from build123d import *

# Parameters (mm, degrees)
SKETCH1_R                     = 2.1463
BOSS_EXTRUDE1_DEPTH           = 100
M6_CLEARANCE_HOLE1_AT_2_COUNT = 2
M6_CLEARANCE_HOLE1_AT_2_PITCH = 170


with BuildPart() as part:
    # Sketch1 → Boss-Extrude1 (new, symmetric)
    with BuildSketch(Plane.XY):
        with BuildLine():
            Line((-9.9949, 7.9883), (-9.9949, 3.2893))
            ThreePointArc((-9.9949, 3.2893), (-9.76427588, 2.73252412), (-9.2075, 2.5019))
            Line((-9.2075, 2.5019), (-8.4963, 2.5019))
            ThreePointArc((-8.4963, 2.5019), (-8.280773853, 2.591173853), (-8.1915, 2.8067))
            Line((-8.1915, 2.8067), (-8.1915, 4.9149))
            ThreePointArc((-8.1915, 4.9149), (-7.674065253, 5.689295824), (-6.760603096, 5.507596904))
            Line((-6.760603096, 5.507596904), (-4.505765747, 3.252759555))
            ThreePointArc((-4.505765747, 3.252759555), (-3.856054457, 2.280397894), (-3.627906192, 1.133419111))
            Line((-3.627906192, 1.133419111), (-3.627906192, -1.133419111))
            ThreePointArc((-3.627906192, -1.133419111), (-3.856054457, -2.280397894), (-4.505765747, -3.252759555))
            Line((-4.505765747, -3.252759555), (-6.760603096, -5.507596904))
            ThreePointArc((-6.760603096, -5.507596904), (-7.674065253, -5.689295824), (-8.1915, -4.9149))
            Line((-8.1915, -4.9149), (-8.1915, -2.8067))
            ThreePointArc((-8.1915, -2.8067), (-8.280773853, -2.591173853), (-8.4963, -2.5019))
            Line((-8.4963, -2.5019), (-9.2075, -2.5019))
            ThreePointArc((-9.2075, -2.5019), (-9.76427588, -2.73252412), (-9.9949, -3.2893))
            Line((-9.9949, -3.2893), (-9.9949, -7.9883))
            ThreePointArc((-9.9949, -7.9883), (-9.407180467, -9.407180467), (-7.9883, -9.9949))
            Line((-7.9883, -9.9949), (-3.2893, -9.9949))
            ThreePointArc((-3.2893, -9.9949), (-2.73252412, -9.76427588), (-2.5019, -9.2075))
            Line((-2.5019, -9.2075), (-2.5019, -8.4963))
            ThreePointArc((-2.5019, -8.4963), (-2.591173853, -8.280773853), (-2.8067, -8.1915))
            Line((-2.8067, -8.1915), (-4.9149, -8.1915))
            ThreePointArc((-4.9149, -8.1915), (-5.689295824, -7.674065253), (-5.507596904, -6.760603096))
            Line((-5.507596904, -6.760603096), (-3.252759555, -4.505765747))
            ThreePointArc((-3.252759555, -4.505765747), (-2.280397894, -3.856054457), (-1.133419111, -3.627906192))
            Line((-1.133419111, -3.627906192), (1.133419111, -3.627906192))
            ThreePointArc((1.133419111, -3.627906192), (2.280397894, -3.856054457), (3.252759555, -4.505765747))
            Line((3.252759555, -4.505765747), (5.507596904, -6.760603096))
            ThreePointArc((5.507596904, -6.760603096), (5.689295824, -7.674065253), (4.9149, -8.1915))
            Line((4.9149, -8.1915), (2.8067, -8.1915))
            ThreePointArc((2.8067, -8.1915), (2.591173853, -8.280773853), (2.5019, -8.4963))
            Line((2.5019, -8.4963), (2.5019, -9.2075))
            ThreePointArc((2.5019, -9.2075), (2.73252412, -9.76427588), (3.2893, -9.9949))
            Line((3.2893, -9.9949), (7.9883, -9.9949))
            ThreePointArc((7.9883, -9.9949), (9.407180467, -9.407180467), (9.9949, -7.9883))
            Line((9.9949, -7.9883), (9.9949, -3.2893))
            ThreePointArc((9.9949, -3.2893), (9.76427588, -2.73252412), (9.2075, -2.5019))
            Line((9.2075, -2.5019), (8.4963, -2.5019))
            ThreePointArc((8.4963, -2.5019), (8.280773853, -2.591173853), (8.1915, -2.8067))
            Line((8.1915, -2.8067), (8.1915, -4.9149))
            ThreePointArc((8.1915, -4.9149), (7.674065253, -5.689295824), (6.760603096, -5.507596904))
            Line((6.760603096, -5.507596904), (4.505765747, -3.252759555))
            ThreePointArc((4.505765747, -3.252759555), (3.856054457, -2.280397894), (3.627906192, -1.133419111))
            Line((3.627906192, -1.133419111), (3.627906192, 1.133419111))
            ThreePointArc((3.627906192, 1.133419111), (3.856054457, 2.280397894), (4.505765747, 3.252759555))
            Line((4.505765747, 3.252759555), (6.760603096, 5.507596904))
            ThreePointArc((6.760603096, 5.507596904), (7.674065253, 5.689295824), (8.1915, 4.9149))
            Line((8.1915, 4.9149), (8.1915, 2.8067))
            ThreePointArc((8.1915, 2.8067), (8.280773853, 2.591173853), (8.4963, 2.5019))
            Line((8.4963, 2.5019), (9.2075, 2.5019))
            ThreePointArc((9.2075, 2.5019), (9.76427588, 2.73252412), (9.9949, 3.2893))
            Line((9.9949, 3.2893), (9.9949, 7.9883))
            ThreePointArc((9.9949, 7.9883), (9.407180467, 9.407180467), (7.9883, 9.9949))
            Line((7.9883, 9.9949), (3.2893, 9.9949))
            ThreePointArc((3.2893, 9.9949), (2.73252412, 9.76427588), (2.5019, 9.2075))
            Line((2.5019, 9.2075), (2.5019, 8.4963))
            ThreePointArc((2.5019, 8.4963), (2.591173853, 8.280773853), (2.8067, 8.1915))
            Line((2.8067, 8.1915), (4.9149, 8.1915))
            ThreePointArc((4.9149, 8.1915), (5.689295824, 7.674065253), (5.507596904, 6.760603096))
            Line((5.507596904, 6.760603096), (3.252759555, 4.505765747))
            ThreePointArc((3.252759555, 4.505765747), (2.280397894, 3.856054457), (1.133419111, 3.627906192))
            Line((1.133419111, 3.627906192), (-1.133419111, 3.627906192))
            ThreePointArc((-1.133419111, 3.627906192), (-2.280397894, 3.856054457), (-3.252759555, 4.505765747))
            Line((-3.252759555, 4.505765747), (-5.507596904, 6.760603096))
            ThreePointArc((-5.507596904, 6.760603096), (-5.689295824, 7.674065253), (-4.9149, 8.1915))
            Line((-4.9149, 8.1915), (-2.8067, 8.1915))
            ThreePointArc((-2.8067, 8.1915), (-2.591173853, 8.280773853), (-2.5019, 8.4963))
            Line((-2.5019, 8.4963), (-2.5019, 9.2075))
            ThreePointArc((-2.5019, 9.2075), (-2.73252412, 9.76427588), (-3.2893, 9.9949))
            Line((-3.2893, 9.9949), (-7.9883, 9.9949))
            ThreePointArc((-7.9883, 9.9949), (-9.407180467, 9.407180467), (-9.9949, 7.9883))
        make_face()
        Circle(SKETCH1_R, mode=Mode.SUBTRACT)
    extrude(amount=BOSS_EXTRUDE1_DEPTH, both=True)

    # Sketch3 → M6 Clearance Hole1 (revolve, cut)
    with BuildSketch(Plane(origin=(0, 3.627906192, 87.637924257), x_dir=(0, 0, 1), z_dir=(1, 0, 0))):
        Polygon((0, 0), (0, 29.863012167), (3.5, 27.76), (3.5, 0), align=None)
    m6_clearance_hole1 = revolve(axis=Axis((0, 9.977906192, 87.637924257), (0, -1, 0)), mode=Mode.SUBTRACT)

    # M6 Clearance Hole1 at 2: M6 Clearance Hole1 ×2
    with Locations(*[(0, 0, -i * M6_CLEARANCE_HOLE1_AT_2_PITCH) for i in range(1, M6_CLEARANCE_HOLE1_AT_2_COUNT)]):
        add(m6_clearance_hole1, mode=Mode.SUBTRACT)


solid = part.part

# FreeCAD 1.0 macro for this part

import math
import FreeCAD as App
import Part
import Sketcher
from FreeCAD import Vector
Q = App.Units.Quantity

doc = App.newDocument("Part")
body = doc.addObject("PartDesign::Body", "Body")

# Sketch on XY plane
sketch1 = body.newObject("Sketcher::SketchObject", "Sketch")
sketch1.AttachmentSupport = (doc.getObject("XY_Plane"), [""])
sketch1.MapMode = "FlatFace"
sketch1.addGeometry(Part.LineSegment(Vector(-9.99, 7.99, 0), Vector(-9.99, 3.29, 0)), False)
sketch1.addGeometry(Part.ArcOfCircle(Part.Circle(Vector(-9.21, 3.29, 0), Vector(0, 0, 1), 0.79), math.radians(180), math.radians(270)), False)
sketch1.addGeometry(Part.LineSegment(Vector(-9.21, 2.5, 0), Vector(-8.5, 2.5, 0)), False)
sketch1.addGeometry(Part.ArcOfCircle(Part.Circle(Vector(-8.5, 2.81, 0), Vector(0, 0, 1), 0.3), math.radians(-90), math.radians(0)), False)
sketch1.addGeometry(Part.LineSegment(Vector(-8.19, 2.81, 0), Vector(-8.19, 4.91, 0)), False)
sketch1.addGeometry(Part.ArcOfCircle(Part.Circle(Vector(-7.35, 4.91, 0), Vector(0, 0, 1), 0.84), math.radians(45), math.radians(180)), False)
sketch1.addGeometry(Part.LineSegment(Vector(-6.76, 5.51, 0), Vector(-4.51, 3.25, 0)), False)
sketch1.addGeometry(Part.ArcOfCircle(Part.Circle(Vector(-6.63, 1.13, 0), Vector(0, 0, 1), 3), math.radians(0), math.radians(45)), False)
sketch1.addGeometry(Part.LineSegment(Vector(-3.63, 1.13, 0), Vector(-3.63, -1.13, 0)), False)
sketch1.addGeometry(Part.ArcOfCircle(Part.Circle(Vector(-6.63, -1.13, 0), Vector(0, 0, 1), 3), math.radians(-45), math.radians(0)), False)
sketch1.addGeometry(Part.LineSegment(Vector(-4.51, -3.25, 0), Vector(-6.76, -5.51, 0)), False)
sketch1.addGeometry(Part.ArcOfCircle(Part.Circle(Vector(-7.35, -4.91, 0), Vector(0, 0, 1), 0.84), math.radians(180), math.radians(315)), False)
sketch1.addGeometry(Part.LineSegment(Vector(-8.19, -4.91, 0), Vector(-8.19, -2.81, 0)), False)
sketch1.addGeometry(Part.ArcOfCircle(Part.Circle(Vector(-8.5, -2.81, 0), Vector(0, 0, 1), 0.3), math.radians(0), math.radians(90)), False)
sketch1.addGeometry(Part.LineSegment(Vector(-8.5, -2.5, 0), Vector(-9.21, -2.5, 0)), False)
sketch1.addGeometry(Part.ArcOfCircle(Part.Circle(Vector(-9.21, -3.29, 0), Vector(0, 0, 1), 0.79), math.radians(90), math.radians(180)), False)
sketch1.addGeometry(Part.LineSegment(Vector(-9.99, -3.29, 0), Vector(-9.99, -7.99, 0)), False)
sketch1.addGeometry(Part.ArcOfCircle(Part.Circle(Vector(-7.99, -7.99, 0), Vector(0, 0, 1), 2.01), math.radians(180), math.radians(270)), False)
sketch1.addGeometry(Part.LineSegment(Vector(-7.99, -9.99, 0), Vector(-3.29, -9.99, 0)), False)
sketch1.addGeometry(Part.ArcOfCircle(Part.Circle(Vector(-3.29, -9.21, 0), Vector(0, 0, 1), 0.79), math.radians(-90), math.radians(0)), False)
sketch1.addGeometry(Part.LineSegment(Vector(-2.5, -9.21, 0), Vector(-2.5, -8.5, 0)), False)
sketch1.addGeometry(Part.ArcOfCircle(Part.Circle(Vector(-2.81, -8.5, 0), Vector(0, 0, 1), 0.3), math.radians(0), math.radians(90)), False)
sketch1.addGeometry(Part.LineSegment(Vector(-2.81, -8.19, 0), Vector(-4.91, -8.19, 0)), False)
sketch1.addGeometry(Part.ArcOfCircle(Part.Circle(Vector(-4.91, -7.35, 0), Vector(0, 0, 1), 0.84), math.radians(135), math.radians(270)), False)
sketch1.addGeometry(Part.LineSegment(Vector(-5.51, -6.76, 0), Vector(-3.25, -4.51, 0)), False)
sketch1.addGeometry(Part.ArcOfCircle(Part.Circle(Vector(-1.13, -6.63, 0), Vector(0, 0, 1), 3), math.radians(90), math.radians(135)), False)
sketch1.addGeometry(Part.LineSegment(Vector(-1.13, -3.63, 0), Vector(1.13, -3.63, 0)), False)
sketch1.addGeometry(Part.ArcOfCircle(Part.Circle(Vector(1.13, -6.63, 0), Vector(0, 0, 1), 3), math.radians(45), math.radians(90)), False)
sketch1.addGeometry(Part.LineSegment(Vector(3.25, -4.51, 0), Vector(5.51, -6.76, 0)), False)
sketch1.addGeometry(Part.ArcOfCircle(Part.Circle(Vector(4.91, -7.35, 0), Vector(0, 0, 1), 0.84), math.radians(-90), math.radians(45)), False)
sketch1.addGeometry(Part.LineSegment(Vector(4.91, -8.19, 0), Vector(2.81, -8.19, 0)), False)
sketch1.addGeometry(Part.ArcOfCircle(Part.Circle(Vector(2.81, -8.5, 0), Vector(0, 0, 1), 0.3), math.radians(90), math.radians(180)), False)
sketch1.addGeometry(Part.LineSegment(Vector(2.5, -8.5, 0), Vector(2.5, -9.21, 0)), False)
sketch1.addGeometry(Part.ArcOfCircle(Part.Circle(Vector(3.29, -9.21, 0), Vector(0, 0, 1), 0.79), math.radians(180), math.radians(270)), False)
sketch1.addGeometry(Part.LineSegment(Vector(3.29, -9.99, 0), Vector(7.99, -9.99, 0)), False)
sketch1.addGeometry(Part.ArcOfCircle(Part.Circle(Vector(7.99, -7.99, 0), Vector(0, 0, 1), 2.01), math.radians(-90), math.radians(0)), False)
sketch1.addGeometry(Part.LineSegment(Vector(9.99, -7.99, 0), Vector(9.99, -3.29, 0)), False)
sketch1.addGeometry(Part.ArcOfCircle(Part.Circle(Vector(9.21, -3.29, 0), Vector(0, 0, 1), 0.79), math.radians(0), math.radians(90)), False)
sketch1.addGeometry(Part.LineSegment(Vector(9.21, -2.5, 0), Vector(8.5, -2.5, 0)), False)
sketch1.addGeometry(Part.ArcOfCircle(Part.Circle(Vector(8.5, -2.81, 0), Vector(0, 0, 1), 0.3), math.radians(90), math.radians(180)), False)
sketch1.addGeometry(Part.LineSegment(Vector(8.19, -2.81, 0), Vector(8.19, -4.91, 0)), False)
sketch1.addGeometry(Part.ArcOfCircle(Part.Circle(Vector(7.35, -4.91, 0), Vector(0, 0, 1), 0.84), math.radians(-135), math.radians(0)), False)
sketch1.addGeometry(Part.LineSegment(Vector(6.76, -5.51, 0), Vector(4.51, -3.25, 0)), False)
sketch1.addGeometry(Part.ArcOfCircle(Part.Circle(Vector(6.63, -1.13, 0), Vector(0, 0, 1), 3), math.radians(180), math.radians(225)), False)
sketch1.addGeometry(Part.LineSegment(Vector(3.63, -1.13, 0), Vector(3.63, 1.13, 0)), False)
sketch1.addGeometry(Part.ArcOfCircle(Part.Circle(Vector(6.63, 1.13, 0), Vector(0, 0, 1), 3), math.radians(135), math.radians(180)), False)
sketch1.addGeometry(Part.LineSegment(Vector(4.51, 3.25, 0), Vector(6.76, 5.51, 0)), False)
sketch1.addGeometry(Part.ArcOfCircle(Part.Circle(Vector(7.35, 4.91, 0), Vector(0, 0, 1), 0.84), math.radians(0), math.radians(135)), False)
sketch1.addGeometry(Part.LineSegment(Vector(8.19, 4.91, 0), Vector(8.19, 2.81, 0)), False)
sketch1.addGeometry(Part.ArcOfCircle(Part.Circle(Vector(8.5, 2.81, 0), Vector(0, 0, 1), 0.3), math.radians(180), math.radians(270)), False)
sketch1.addGeometry(Part.LineSegment(Vector(8.5, 2.5, 0), Vector(9.21, 2.5, 0)), False)
sketch1.addGeometry(Part.ArcOfCircle(Part.Circle(Vector(9.21, 3.29, 0), Vector(0, 0, 1), 0.79), math.radians(-90), math.radians(0)), False)
sketch1.addGeometry(Part.LineSegment(Vector(9.99, 3.29, 0), Vector(9.99, 7.99, 0)), False)
sketch1.addGeometry(Part.ArcOfCircle(Part.Circle(Vector(7.99, 7.99, 0), Vector(0, 0, 1), 2.01), math.radians(0), math.radians(90)), False)
sketch1.addGeometry(Part.LineSegment(Vector(7.99, 9.99, 0), Vector(3.29, 9.99, 0)), False)
sketch1.addGeometry(Part.ArcOfCircle(Part.Circle(Vector(3.29, 9.21, 0), Vector(0, 0, 1), 0.79), math.radians(90), math.radians(180)), False)
sketch1.addGeometry(Part.LineSegment(Vector(2.5, 9.21, 0), Vector(2.5, 8.5, 0)), False)
sketch1.addGeometry(Part.ArcOfCircle(Part.Circle(Vector(2.81, 8.5, 0), Vector(0, 0, 1), 0.3), math.radians(180), math.radians(270)), False)
sketch1.addGeometry(Part.LineSegment(Vector(2.81, 8.19, 0), Vector(4.91, 8.19, 0)), False)
sketch1.addGeometry(Part.ArcOfCircle(Part.Circle(Vector(4.91, 7.35, 0), Vector(0, 0, 1), 0.84), math.radians(-45), math.radians(90)), False)
sketch1.addGeometry(Part.LineSegment(Vector(5.51, 6.76, 0), Vector(3.25, 4.51, 0)), False)
sketch1.addGeometry(Part.ArcOfCircle(Part.Circle(Vector(1.13, 6.63, 0), Vector(0, 0, 1), 3), math.radians(-90), math.radians(-45)), False)
sketch1.addGeometry(Part.LineSegment(Vector(1.13, 3.63, 0), Vector(-1.13, 3.63, 0)), False)
sketch1.addGeometry(Part.ArcOfCircle(Part.Circle(Vector(-1.13, 6.63, 0), Vector(0, 0, 1), 3), math.radians(-135), math.radians(-90)), False)
sketch1.addGeometry(Part.LineSegment(Vector(-3.25, 4.51, 0), Vector(-5.51, 6.76, 0)), False)
sketch1.addGeometry(Part.ArcOfCircle(Part.Circle(Vector(-4.91, 7.35, 0), Vector(0, 0, 1), 0.84), math.radians(90), math.radians(225)), False)
sketch1.addGeometry(Part.LineSegment(Vector(-4.91, 8.19, 0), Vector(-2.81, 8.19, 0)), False)
sketch1.addGeometry(Part.ArcOfCircle(Part.Circle(Vector(-2.81, 8.5, 0), Vector(0, 0, 1), 0.3), math.radians(-90), math.radians(0)), False)
sketch1.addGeometry(Part.LineSegment(Vector(-2.5, 8.5, 0), Vector(-2.5, 9.21, 0)), False)
sketch1.addGeometry(Part.ArcOfCircle(Part.Circle(Vector(-3.29, 9.21, 0), Vector(0, 0, 1), 0.79), math.radians(0), math.radians(90)), False)
sketch1.addGeometry(Part.LineSegment(Vector(-3.29, 9.99, 0), Vector(-7.99, 9.99, 0)), False)
sketch1.addGeometry(Part.ArcOfCircle(Part.Circle(Vector(-7.99, 7.99, 0), Vector(0, 0, 1), 2.01), math.radians(90), math.radians(180)), False)
sketch1.addGeometry(Part.Circle(Vector(0, 0, 0), Vector(0, 0, 1), 2.15), False)
sketch1.addConstraint(Sketcher.Constraint("Tangent", 0, 2, 1, 1))
sketch1.addConstraint(Sketcher.Constraint("Tangent", 1, 2, 2, 1))
sketch1.addConstraint(Sketcher.Constraint("Tangent", 2, 2, 3, 1))
sketch1.addConstraint(Sketcher.Constraint("Tangent", 3, 2, 4, 1))
sketch1.addConstraint(Sketcher.Constraint("Tangent", 4, 2, 5, 2))
sketch1.addConstraint(Sketcher.Constraint("Tangent", 5, 1, 6, 1))
sketch1.addConstraint(Sketcher.Constraint("Tangent", 6, 2, 7, 2))
sketch1.addConstraint(Sketcher.Constraint("Tangent", 7, 1, 8, 1))
sketch1.addConstraint(Sketcher.Constraint("Tangent", 8, 2, 9, 2))
sketch1.addConstraint(Sketcher.Constraint("Tangent", 9, 1, 10, 1))
sketch1.addConstraint(Sketcher.Constraint("Tangent", 10, 2, 11, 2))
sketch1.addConstraint(Sketcher.Constraint("Tangent", 11, 1, 12, 1))
sketch1.addConstraint(Sketcher.Constraint("Tangent", 12, 2, 13, 1))
sketch1.addConstraint(Sketcher.Constraint("Tangent", 13, 2, 14, 1))
sketch1.addConstraint(Sketcher.Constraint("Tangent", 14, 2, 15, 1))
sketch1.addConstraint(Sketcher.Constraint("Tangent", 15, 2, 16, 1))
sketch1.addConstraint(Sketcher.Constraint("Tangent", 16, 2, 17, 1))
sketch1.addConstraint(Sketcher.Constraint("Tangent", 17, 2, 18, 1))
sketch1.addConstraint(Sketcher.Constraint("Tangent", 18, 2, 19, 1))
sketch1.addConstraint(Sketcher.Constraint("Tangent", 19, 2, 20, 1))
sketch1.addConstraint(Sketcher.Constraint("Tangent", 20, 2, 21, 1))
sketch1.addConstraint(Sketcher.Constraint("Tangent", 21, 2, 22, 1))
sketch1.addConstraint(Sketcher.Constraint("Tangent", 22, 2, 23, 2))
sketch1.addConstraint(Sketcher.Constraint("Tangent", 23, 1, 24, 1))
sketch1.addConstraint(Sketcher.Constraint("Tangent", 24, 2, 25, 2))
sketch1.addConstraint(Sketcher.Constraint("Tangent", 25, 1, 26, 1))
sketch1.addConstraint(Sketcher.Constraint("Tangent", 26, 2, 27, 2))
sketch1.addConstraint(Sketcher.Constraint("Tangent", 27, 1, 28, 1))
sketch1.addConstraint(Sketcher.Constraint("Tangent", 28, 2, 29, 2))
sketch1.addConstraint(Sketcher.Constraint("Tangent", 29, 1, 30, 1))
sketch1.addConstraint(Sketcher.Constraint("Tangent", 30, 2, 31, 1))
sketch1.addConstraint(Sketcher.Constraint("Tangent", 31, 2, 32, 1))
sketch1.addConstraint(Sketcher.Constraint("Tangent", 32, 2, 33, 1))
sketch1.addConstraint(Sketcher.Constraint("Tangent", 33, 2, 34, 1))
sketch1.addConstraint(Sketcher.Constraint("Tangent", 34, 2, 35, 1))
sketch1.addConstraint(Sketcher.Constraint("Tangent", 35, 2, 36, 1))
sketch1.addConstraint(Sketcher.Constraint("Tangent", 36, 2, 37, 1))
sketch1.addConstraint(Sketcher.Constraint("Tangent", 37, 2, 38, 1))
sketch1.addConstraint(Sketcher.Constraint("Tangent", 38, 2, 39, 1))
sketch1.addConstraint(Sketcher.Constraint("Tangent", 39, 2, 40, 1))
sketch1.addConstraint(Sketcher.Constraint("Tangent", 40, 2, 41, 2))
sketch1.addConstraint(Sketcher.Constraint("Tangent", 41, 1, 42, 1))
sketch1.addConstraint(Sketcher.Constraint("Tangent", 42, 2, 43, 2))
sketch1.addConstraint(Sketcher.Constraint("Tangent", 43, 1, 44, 1))
sketch1.addConstraint(Sketcher.Constraint("Tangent", 44, 2, 45, 2))
sketch1.addConstraint(Sketcher.Constraint("Tangent", 45, 1, 46, 1))
sketch1.addConstraint(Sketcher.Constraint("Tangent", 46, 2, 47, 2))
sketch1.addConstraint(Sketcher.Constraint("Tangent", 47, 1, 48, 1))
sketch1.addConstraint(Sketcher.Constraint("Tangent", 48, 2, 49, 1))
sketch1.addConstraint(Sketcher.Constraint("Tangent", 49, 2, 50, 1))
sketch1.addConstraint(Sketcher.Constraint("Tangent", 50, 2, 51, 1))
sketch1.addConstraint(Sketcher.Constraint("Tangent", 51, 2, 52, 1))
sketch1.addConstraint(Sketcher.Constraint("Tangent", 52, 2, 53, 1))
sketch1.addConstraint(Sketcher.Constraint("Tangent", 53, 2, 54, 1))
sketch1.addConstraint(Sketcher.Constraint("Tangent", 54, 2, 55, 1))
sketch1.addConstraint(Sketcher.Constraint("Tangent", 55, 2, 56, 1))
sketch1.addConstraint(Sketcher.Constraint("Tangent", 56, 2, 57, 1))
sketch1.addConstraint(Sketcher.Constraint("Tangent", 57, 2, 58, 1))
sketch1.addConstraint(Sketcher.Constraint("Tangent", 58, 2, 59, 2))
sketch1.addConstraint(Sketcher.Constraint("Tangent", 59, 1, 60, 1))
sketch1.addConstraint(Sketcher.Constraint("Tangent", 60, 2, 61, 2))
sketch1.addConstraint(Sketcher.Constraint("Tangent", 61, 1, 62, 1))
sketch1.addConstraint(Sketcher.Constraint("Tangent", 62, 2, 63, 2))
sketch1.addConstraint(Sketcher.Constraint("Tangent", 63, 1, 64, 1))
sketch1.addConstraint(Sketcher.Constraint("Tangent", 64, 2, 65, 2))
sketch1.addConstraint(Sketcher.Constraint("Tangent", 65, 1, 66, 1))
sketch1.addConstraint(Sketcher.Constraint("Tangent", 66, 2, 67, 1))
sketch1.addConstraint(Sketcher.Constraint("Tangent", 67, 2, 68, 1))
sketch1.addConstraint(Sketcher.Constraint("Tangent", 68, 2, 69, 1))
sketch1.addConstraint(Sketcher.Constraint("Tangent", 69, 2, 70, 1))
sketch1.addConstraint(Sketcher.Constraint("Tangent", 70, 2, 71, 1))
sketch1.addConstraint(Sketcher.Constraint("Tangent", 71, 2, 0, 1))
sketch1.addConstraint(Sketcher.Constraint("Vertical", 0))
sketch1.addConstraint(Sketcher.Constraint("Horizontal", 2))
sketch1.addConstraint(Sketcher.Constraint("Vertical", 4))
sketch1.addConstraint(Sketcher.Constraint("Vertical", 8))
sketch1.addConstraint(Sketcher.Constraint("Vertical", 12))
sketch1.addConstraint(Sketcher.Constraint("Horizontal", 14))
sketch1.addConstraint(Sketcher.Constraint("Vertical", 16))
sketch1.addConstraint(Sketcher.Constraint("Horizontal", 18))
sketch1.addConstraint(Sketcher.Constraint("Vertical", 20))
sketch1.addConstraint(Sketcher.Constraint("Horizontal", 22))
sketch1.addConstraint(Sketcher.Constraint("Horizontal", 26))
sketch1.addConstraint(Sketcher.Constraint("Horizontal", 30))
sketch1.addConstraint(Sketcher.Constraint("Vertical", 32))
sketch1.addConstraint(Sketcher.Constraint("Horizontal", 34))
sketch1.addConstraint(Sketcher.Constraint("Vertical", 36))
sketch1.addConstraint(Sketcher.Constraint("Horizontal", 38))
sketch1.addConstraint(Sketcher.Constraint("Vertical", 40))
sketch1.addConstraint(Sketcher.Constraint("Vertical", 44))
sketch1.addConstraint(Sketcher.Constraint("Vertical", 48))
sketch1.addConstraint(Sketcher.Constraint("Horizontal", 50))
sketch1.addConstraint(Sketcher.Constraint("Vertical", 52))
sketch1.addConstraint(Sketcher.Constraint("Horizontal", 54))
sketch1.addConstraint(Sketcher.Constraint("Vertical", 56))
sketch1.addConstraint(Sketcher.Constraint("Horizontal", 58))
sketch1.addConstraint(Sketcher.Constraint("Horizontal", 62))
sketch1.addConstraint(Sketcher.Constraint("Horizontal", 66))
sketch1.addConstraint(Sketcher.Constraint("Vertical", 68))
sketch1.addConstraint(Sketcher.Constraint("Horizontal", 70))
sketch1.addConstraint(Sketcher.Constraint("Coincident", 72, 3, -1, 1))
sketch1.addConstraint(Sketcher.Constraint("Equal", 7, 9))
sketch1.addConstraint(Sketcher.Constraint("Equal", 5, 11))
sketch1.addConstraint(Sketcher.Constraint("Equal", 3, 13))
sketch1.addConstraint(Sketcher.Constraint("Equal", 1, 15))
sketch1.addConstraint(Sketcher.Constraint("Equal", 15, 19))
sketch1.addConstraint(Sketcher.Constraint("Equal", 13, 21))
sketch1.addConstraint(Sketcher.Constraint("Equal", 11, 23))
sketch1.addConstraint(Sketcher.Constraint("Equal", 9, 25))
sketch1.addConstraint(Sketcher.Constraint("Equal", 25, 27))
sketch1.addConstraint(Sketcher.Constraint("Equal", 23, 29))
sketch1.addConstraint(Sketcher.Constraint("Equal", 21, 31))
sketch1.addConstraint(Sketcher.Constraint("Equal", 19, 33))
sketch1.addConstraint(Sketcher.Constraint("Equal", 17, 35))
sketch1.addConstraint(Sketcher.Constraint("Equal", 33, 37))
sketch1.addConstraint(Sketcher.Constraint("Equal", 31, 39))
sketch1.addConstraint(Sketcher.Constraint("Equal", 29, 41))
sketch1.addConstraint(Sketcher.Constraint("Equal", 27, 43))
sketch1.addConstraint(Sketcher.Constraint("Equal", 43, 45))
sketch1.addConstraint(Sketcher.Constraint("Equal", 41, 47))
sketch1.addConstraint(Sketcher.Constraint("Equal", 39, 49))
sketch1.addConstraint(Sketcher.Constraint("Equal", 37, 51))
sketch1.addConstraint(Sketcher.Constraint("Equal", 35, 53))
sketch1.addConstraint(Sketcher.Constraint("Equal", 51, 55))
sketch1.addConstraint(Sketcher.Constraint("Equal", 49, 57))
sketch1.addConstraint(Sketcher.Constraint("Equal", 47, 59))
sketch1.addConstraint(Sketcher.Constraint("Equal", 45, 61))
sketch1.addConstraint(Sketcher.Constraint("Equal", 61, 63))
sketch1.addConstraint(Sketcher.Constraint("Equal", 59, 65))
sketch1.addConstraint(Sketcher.Constraint("Equal", 57, 67))
sketch1.addConstraint(Sketcher.Constraint("Equal", 55, 69))
sketch1.addConstraint(Sketcher.Constraint("Equal", 53, 71))
sketch1.addConstraint(Sketcher.Constraint("Symmetric", 1, 3, 37, 3, -1, 1))
sketch1.addConstraint(Sketcher.Constraint("Symmetric", 5, 3, 41, 3, -1, 1))
sketch1.addConstraint(Sketcher.Constraint("Symmetric", 7, 3, 43, 3, -1, 1))
sketch1.addConstraint(Sketcher.Constraint("Symmetric", 11, 3, 47, 3, -1, 1))
sketch1.addConstraint(Sketcher.Constraint("Symmetric", 15, 3, 51, 3, -1, 1))
sketch1.addConstraint(Sketcher.Constraint("Symmetric", 19, 3, 55, 3, -1, 1))
sketch1.addConstraint(Sketcher.Constraint("Symmetric", 23, 3, 59, 3, -1, 1))
sketch1.addConstraint(Sketcher.Constraint("Symmetric", 25, 3, 61, 3, -1, 1))
sketch1.addConstraint(Sketcher.Constraint("Symmetric", 29, 3, 65, 3, -1, 1))
sketch1.addConstraint(Sketcher.Constraint("Symmetric", 33, 3, 69, 3, -1, 1))
sketch1.addConstraint(Sketcher.Constraint("Symmetric", 23, 3, 29, 3, -2))
sketch1.addConstraint(Sketcher.Constraint("Symmetric", 19, 3, 33, 3, -2))
sketch1.addConstraint(Sketcher.Constraint("Symmetric", 15, 3, 37, 3, -2))
sketch1.addConstraint(Sketcher.Constraint("Symmetric", 11, 3, 41, 3, -2))
sketch1.addConstraint(Sketcher.Constraint("Perpendicular", 6, 10))
sketch1.addConstraint(Sketcher.Constraint("Parallel", 10, 24))
sketch1.addConstraint(Sketcher.Constraint("Perpendicular", 24, 28))
sketch1.addConstraint(Sketcher.Constraint("Perpendicular", 42, 46))
sketch1.addConstraint(Sketcher.Constraint("Perpendicular", 60, 64))
sketch1.addConstraint(Sketcher.Constraint("Horizontal", 9, 3, 43, 3))
sketch1.addConstraint(Sketcher.Constraint("Equal", 70, 0))
sketch1.addConstraint(Sketcher.Constraint("Equal", 66, 4))
sketch1.addConstraint(Sketcher.Constraint("Equal", 62, 8))
sketch1.addConstraint(Sketcher.Constraint("Equal", 50, 20))
sketch1.addConstraint(Sketcher.Constraint("Equal", 10, 24))
sketch1.addConstraint(Sketcher.Constraint("Diameter", 72, Q("0.169 in")))
sketch1.addConstraint(Sketcher.Constraint("Radius", 1, Q("0.031 in")))
sketch1.addConstraint(Sketcher.Constraint("Radius", 3, Q("0.012 in")))
sketch1.addConstraint(Sketcher.Constraint("Radius", 5, Q("0.033 in")))
sketch1.addConstraint(Sketcher.Constraint("Radius", 7, Q("0.118 in")))
sketch1.addConstraint(Sketcher.Constraint("Radius", 17, Q("0.079 in")))
sketch1.addConstraint(Sketcher.Constraint("DistanceX", 2, 1, 2, 2, Q("0.028 in")))
sketch1.addConstraint(Sketcher.Constraint("DistanceX", 18, 1, 18, 2, Q("0.185 in")))
sketch1.addConstraint(Sketcher.Constraint("DistanceX", 22, 2, 22, 1, Q("0.083 in")))
sketch1.addConstraint(Sketcher.Constraint("DistanceX", 1, 3, -1, 1, Q("0.3625 in")))
sketch1.addConstraint(Sketcher.Constraint("DistanceX", 26, 1, 26, 2, Q("2.266838 mm")))
pad1 = body.newObject("PartDesign::Pad", "Pad")
pad1.Profile = sketch1
pad1.Length = 200
pad1.Midplane = True

# Sketch on YZ plane
sketch2 = body.newObject("Sketcher::SketchObject", "Sketch001")
sketch2.AttachmentSupport = (doc.getObject("YZ_Plane"), [""])
sketch2.MapMode = "FlatFace"
sketch2.addGeometry(Part.LineSegment(Vector(-26.2, 87.6, 0), Vector(3.6, 87.6, 0)), False)
sketch2.addGeometry(Part.LineSegment(Vector(3.6, 87.6, 0), Vector(3.6, 91.1, 0)), False)
sketch2.addGeometry(Part.LineSegment(Vector(3.6, 91.1, 0), Vector(-24.1, 91.1, 0)), False)
sketch2.addGeometry(Part.LineSegment(Vector(-24.1, 91.1, 0), Vector(-26.2, 87.6, 0)), False)
sketch2.addGeometry(Part.LineSegment(Vector(3.6, 87.6, 0), Vector(-26.2, 87.6, 0)), True)  # axis
sketch2.addConstraint(Sketcher.Constraint("Coincident", 0, 2, 1, 1))
sketch2.addConstraint(Sketcher.Constraint("Coincident", 1, 2, 2, 1))
sketch2.addConstraint(Sketcher.Constraint("Coincident", 2, 2, 3, 1))
sketch2.addConstraint(Sketcher.Constraint("Coincident", 3, 2, 0, 1))
sketch2.addConstraint(Sketcher.Constraint("Horizontal", 0))
sketch2.addConstraint(Sketcher.Constraint("Vertical", 1))
sketch2.addConstraint(Sketcher.Constraint("Horizontal", 2))
sketch2.addConstraint(Sketcher.Constraint("Horizontal", 4))
sketch2.addConstraint(Sketcher.Constraint("Coincident", 4, 1, 0, 2))
sketch2.addConstraint(Sketcher.Constraint("Equal", 0, 4))
sketch2.addConstraint(Sketcher.Constraint("Angle", 3, Q("-121 deg")))
sketch2.addConstraint(Sketcher.Constraint("DistanceX", 2, 2, 2, 1, Q("27.76 mm")))
sketch2.addConstraint(Sketcher.Constraint("DistanceY", 1, 1, 1, 2, Q("3.5 mm")))
sketch2.addConstraint(Sketcher.Constraint("DistanceX", -1, 1, 0, 2, Q("3.627906 mm")))
sketch2.addConstraint(Sketcher.Constraint("DistanceY", -1, 1, 0, 2, Q("87.637924 mm")))
groove = body.newObject("PartDesign::Groove", "Groove")
groove.Profile = sketch2
groove.ReferenceAxis = (sketch2, ["Axis0"])
groove.Angle = 360
doc.recompute()

linearpattern = body.newObject("PartDesign::LinearPattern", "LinearPattern")
linearpattern.Originals = [groove]
linearpattern.Direction = (doc.getObject("Z_Axis"), [""])
linearpattern.Mode = "offset"
linearpattern.Offset = 170
linearpattern.Occurrences = 2
linearpattern.Reversed = True
body.Tip = linearpattern

doc.recompute()
